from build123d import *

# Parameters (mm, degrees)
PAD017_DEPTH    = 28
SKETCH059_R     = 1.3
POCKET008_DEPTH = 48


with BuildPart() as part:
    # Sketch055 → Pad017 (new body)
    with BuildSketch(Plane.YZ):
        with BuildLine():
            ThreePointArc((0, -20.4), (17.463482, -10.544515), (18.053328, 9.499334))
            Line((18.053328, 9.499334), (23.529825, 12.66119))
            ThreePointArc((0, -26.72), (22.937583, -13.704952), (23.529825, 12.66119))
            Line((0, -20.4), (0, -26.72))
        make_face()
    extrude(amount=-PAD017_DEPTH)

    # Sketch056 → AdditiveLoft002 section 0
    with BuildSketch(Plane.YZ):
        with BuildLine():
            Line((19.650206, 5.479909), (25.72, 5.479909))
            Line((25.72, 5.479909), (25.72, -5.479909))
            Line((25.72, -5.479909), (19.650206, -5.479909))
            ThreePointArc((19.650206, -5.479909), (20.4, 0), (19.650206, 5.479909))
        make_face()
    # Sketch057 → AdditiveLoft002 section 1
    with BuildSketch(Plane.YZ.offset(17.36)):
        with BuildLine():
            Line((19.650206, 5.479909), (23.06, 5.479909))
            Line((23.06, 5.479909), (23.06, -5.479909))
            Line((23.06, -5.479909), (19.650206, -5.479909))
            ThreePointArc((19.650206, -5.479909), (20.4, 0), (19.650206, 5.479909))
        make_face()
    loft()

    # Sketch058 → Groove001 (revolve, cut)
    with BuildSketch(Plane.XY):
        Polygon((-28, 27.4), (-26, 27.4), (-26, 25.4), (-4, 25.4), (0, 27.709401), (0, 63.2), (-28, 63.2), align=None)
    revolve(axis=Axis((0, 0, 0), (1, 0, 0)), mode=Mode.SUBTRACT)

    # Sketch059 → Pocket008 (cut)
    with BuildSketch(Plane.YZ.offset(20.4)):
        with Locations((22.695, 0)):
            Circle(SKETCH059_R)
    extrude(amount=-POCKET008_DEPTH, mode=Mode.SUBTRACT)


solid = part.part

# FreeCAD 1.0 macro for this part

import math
import FreeCAD as App
import Part
import Sketcher

V = App.Vector
Q = App.Units.Quantity

doc = App.newDocument("Part")
body = doc.addObject("PartDesign::Body", "Body")

# Sketch on YZ plane
sketch1 = body.newObject("Sketcher::SketchObject", "Sketch")
sketch1.AttachmentSupport = (doc.getObject("YZ_Plane"), [""])
sketch1.MapMode = "FlatFace"
sketch1.addGeometry(Part.ArcOfCircle(Part.Circle(V(0, 0, 0), V(0, 0, 1), 20.4), math.radians(-90), math.radians(27.752532)), False)
sketch1.addGeometry(Part.LineSegment(V(0, -20.4, 0), V(0, -26.72, 0)), False)
sketch1.addGeometry(Part.ArcOfCircle(Part.Circle(V(0.000001, -0.000001, 0), V(0, 0, 1), 26.719999), math.radians(-90.000002), math.radians(28.284302)), False)
sketch1.addGeometry(Part.LineSegment(V(23.529825, 12.66119, 0), V(18.053328, 9.499334, 0)), False)
sketch1.addConstraint(Sketcher.Constraint("Coincident", 0, 1, 1, 1))
sketch1.addConstraint(Sketcher.Constraint("Coincident", 1, 2, 2, 1))
sketch1.addConstraint(Sketcher.Constraint("Coincident", 2, 2, 3, 1))
sketch1.addConstraint(Sketcher.Constraint("Coincident", 3, 2, 0, 2))
sketch1.addConstraint(Sketcher.Constraint("Vertical", 1))
sketch1.addConstraint(Sketcher.Constraint("Coincident", 0, 3, -1, 1))
sketch1.addConstraint(Sketcher.Constraint("Coincident", 2, 3, -1, 1))
sketch1.addConstraint(Sketcher.Constraint("PointOnObject", 0, 1, -2))
sketch1.addConstraint(Sketcher.Constraint("Radius", 0, 20.4))
sketch1.addConstraint(Sketcher.Constraint("Angle", 3, Q("-150.000008 deg")))
sketch1.addConstraint(Sketcher.Constraint("Radius", 2, 26.719999))
sketch1.addConstraint(Sketcher.Constraint("DistanceY", -1, 1, 2, 2, 12.66119))
pad1 = body.newObject("PartDesign::Pad", "Pad")
pad1.Profile = sketch1
pad1.Length = 28
pad1.Reversed = True

# Sketch on YZ plane
sketch2 = body.newObject("Sketcher::SketchObject", "Sketch001")
sketch2.AttachmentSupport = (doc.getObject("YZ_Plane"), [""])
sketch2.MapMode = "FlatFace"
sketch2.addGeometry(Part.LineSegment(V(25.72, 5.479909, 0), V(19.650206, 5.479909, 0)), False)
sketch2.addGeometry(Part.ArcOfCircle(Part.Circle(V(0.000001, 0, 0), V(0, 0, 1), 20.399999), math.radians(-15.582344), math.radians(15.582344)), False)
sketch2.addGeometry(Part.LineSegment(V(19.650206, -5.479909, 0), V(25.72, -5.479909, 0)), False)
sketch2.addGeometry(Part.LineSegment(V(25.72, -5.479909, 0), V(25.72, 5.479909, 0)), False)
sketch2.addConstraint(Sketcher.Constraint("Coincident", 0, 2, 1, 2))
sketch2.addConstraint(Sketcher.Constraint("Coincident", 1, 1, 2, 1))
sketch2.addConstraint(Sketcher.Constraint("Coincident", 2, 2, 3, 1))
sketch2.addConstraint(Sketcher.Constraint("Coincident", 3, 2, 0, 1))
sketch2.addConstraint(Sketcher.Constraint("Horizontal", 0))
sketch2.addConstraint(Sketcher.Constraint("Horizontal", 2))
sketch2.addConstraint(Sketcher.Constraint("Vertical", 3))
sketch2.addConstraint(Sketcher.Constraint("Coincident", 1, 3, -1, 1))
sketch2.addConstraint(Sketcher.Constraint("Vertical", 0, 2, 1, 1))
sketch2.addConstraint(Sketcher.Constraint("Radius", 1, 20.399999))
sketch2.addConstraint(Sketcher.Constraint("DistanceX", -1, 1, 2, 2, 25.72))
sketch2.addConstraint(Sketcher.Constraint("DistanceX", 0, 2, 0, 1, 6.069794))

# Sketch on YZ plane
sketch3 = body.newObject("Sketcher::SketchObject", "Sketch002")
sketch3.AttachmentSupport = (doc.getObject("YZ_Plane"), [""])
sketch3.MapMode = "FlatFace"
sketch3.AttachmentOffset = App.Placement(V(0, 0, 17.36), App.Rotation())
sketch3.addGeometry(Part.LineSegment(V(23.06, 5.479909, 0), V(19.650206, 5.479909, 0)), False)
sketch3.addGeometry(Part.ArcOfCircle(Part.Circle(V(0.000001, 0, 0), V(0, 0, 1), 20.399999), math.radians(-15.582344), math.radians(15.582344)), False)
sketch3.addGeometry(Part.LineSegment(V(19.650206, -5.479909, 0), V(23.06, -5.479909, 0)), False)
sketch3.addGeometry(Part.LineSegment(V(23.06, -5.479909, 0), V(23.06, 5.479909, 0)), False)
sketch3.addConstraint(Sketcher.Constraint("Coincident", 0, 2, 1, 2))
sketch3.addConstraint(Sketcher.Constraint("Coincident", 1, 1, 2, 1))
sketch3.addConstraint(Sketcher.Constraint("Coincident", 2, 2, 3, 1))
sketch3.addConstraint(Sketcher.Constraint("Coincident", 3, 2, 0, 1))
sketch3.addConstraint(Sketcher.Constraint("Horizontal", 0))
sketch3.addConstraint(Sketcher.Constraint("Horizontal", 2))
sketch3.addConstraint(Sketcher.Constraint("Vertical", 3))
sketch3.addConstraint(Sketcher.Constraint("Coincident", 1, 3, -1, 1))
sketch3.addConstraint(Sketcher.Constraint("Vertical", 0, 2, 1, 1))
sketch3.addConstraint(Sketcher.Constraint("Radius", 1, 20.399999))
sketch3.addConstraint(Sketcher.Constraint("DistanceX", -1, 1, 2, 2, 23.06))
sketch3.addConstraint(Sketcher.Constraint("DistanceX", 0, 2, 0, 1, 3.409794))

additiveloft = body.newObject("PartDesign::AdditiveLoft", "AdditiveLoft")
additiveloft.Profile = sketch2
additiveloft.Sections = [sketch3]

# Sketch on XY plane
sketch4 = body.newObject("Sketcher::SketchObject", "Sketch003")
sketch4.AttachmentSupport = (doc.getObject("XY_Plane"), [""])
sketch4.MapMode = "FlatFace"
sketch4.addGeometry(Part.LineSegment(V(-28, 27.4, 0), V(-26, 27.4, 0)), False)
sketch4.addGeometry(Part.LineSegment(V(-26, 27.4, 0), V(-26, 25.4, 0)), False)
sketch4.addGeometry(Part.LineSegment(V(-26, 25.4, 0), V(-4, 25.4, 0)), False)
sketch4.addGeometry(Part.LineSegment(V(-4, 25.4, 0), V(0, 27.709401, 0)), False)
sketch4.addGeometry(Part.LineSegment(V(0, 27.709401, 0), V(0, 63.2, 0)), False)
sketch4.addGeometry(Part.LineSegment(V(0, 63.2, 0), V(-28, 63.2, 0)), False)
sketch4.addGeometry(Part.LineSegment(V(-28, 63.2, 0), V(-28, 27.4, 0)), False)
sketch4.addConstraint(Sketcher.Constraint("Coincident", 0, 2, 1, 1))
sketch4.addConstraint(Sketcher.Constraint("Coincident", 1, 2, 2, 1))
sketch4.addConstraint(Sketcher.Constraint("Coincident", 2, 2, 3, 1))
sketch4.addConstraint(Sketcher.Constraint("Coincident", 3, 2, 4, 1))
sketch4.addConstraint(Sketcher.Constraint("Coincident", 4, 2, 5, 1))
sketch4.addConstraint(Sketcher.Constraint("Coincident", 5, 2, 6, 1))
sketch4.addConstraint(Sketcher.Constraint("Coincident", 6, 2, 0, 1))
sketch4.addConstraint(Sketcher.Constraint("Horizontal", 0))
sketch4.addConstraint(Sketcher.Constraint("Vertical", 1))
sketch4.addConstraint(Sketcher.Constraint("Horizontal", 2))
sketch4.addConstraint(Sketcher.Constraint("Vertical", 4))
sketch4.addConstraint(Sketcher.Constraint("Horizontal", 5))
sketch4.addConstraint(Sketcher.Constraint("Vertical", 6))
sketch4.addConstraint(Sketcher.Constraint("PointOnObject", 3, 2, -2))
sketch4.addConstraint(Sketcher.Constraint("Equal", 0, 1))
sketch4.addConstraint(Sketcher.Constraint("DistanceX", 0, 1, 0, 2, 2.0))
sketch4.addConstraint(Sketcher.Constraint("DistanceX", 2, 1, 2, 2, 22.0))
sketch4.addConstraint(Sketcher.Constraint("DistanceX", 5, 2, 5, 1, 28.0))
sketch4.addConstraint(Sketcher.Constraint("Angle", 3, Q("29.999999 deg")))
sketch4.addConstraint(Sketcher.Constraint("DistanceY", 6, 2, 6, 1, 35.8))
sketch4.addConstraint(Sketcher.Constraint("DistanceY", -1, 1, 0, 2, 27.4))
groove = body.newObject("PartDesign::Groove", "Groove")
groove.Profile = sketch4
groove.ReferenceAxis = (sketch4, ["H_Axis"])
groove.Angle = 360

# Sketch on YZ plane
sketch5 = body.newObject("Sketcher::SketchObject", "Sketch004")
sketch5.AttachmentSupport = (doc.getObject("YZ_Plane"), [""])
sketch5.MapMode = "FlatFace"
sketch5.AttachmentOffset = App.Placement(V(0, 0, 20.4), App.Rotation())
sketch5.addGeometry(Part.Circle(V(22.695, 0, 0), V(0, 0, 1), 1.3), False)
sketch5.addConstraint(Sketcher.Constraint("PointOnObject", 0, 3, -1))
sketch5.addConstraint(Sketcher.Constraint("Diameter", 0, 2.6))
sketch5.addConstraint(Sketcher.Constraint("DistanceX", -1, 1, 0, 3, 22.695))
pocket1 = body.newObject("PartDesign::Pocket", "Pocket")
pocket1.Profile = sketch5
pocket1.Length = 48

doc.recompute()
